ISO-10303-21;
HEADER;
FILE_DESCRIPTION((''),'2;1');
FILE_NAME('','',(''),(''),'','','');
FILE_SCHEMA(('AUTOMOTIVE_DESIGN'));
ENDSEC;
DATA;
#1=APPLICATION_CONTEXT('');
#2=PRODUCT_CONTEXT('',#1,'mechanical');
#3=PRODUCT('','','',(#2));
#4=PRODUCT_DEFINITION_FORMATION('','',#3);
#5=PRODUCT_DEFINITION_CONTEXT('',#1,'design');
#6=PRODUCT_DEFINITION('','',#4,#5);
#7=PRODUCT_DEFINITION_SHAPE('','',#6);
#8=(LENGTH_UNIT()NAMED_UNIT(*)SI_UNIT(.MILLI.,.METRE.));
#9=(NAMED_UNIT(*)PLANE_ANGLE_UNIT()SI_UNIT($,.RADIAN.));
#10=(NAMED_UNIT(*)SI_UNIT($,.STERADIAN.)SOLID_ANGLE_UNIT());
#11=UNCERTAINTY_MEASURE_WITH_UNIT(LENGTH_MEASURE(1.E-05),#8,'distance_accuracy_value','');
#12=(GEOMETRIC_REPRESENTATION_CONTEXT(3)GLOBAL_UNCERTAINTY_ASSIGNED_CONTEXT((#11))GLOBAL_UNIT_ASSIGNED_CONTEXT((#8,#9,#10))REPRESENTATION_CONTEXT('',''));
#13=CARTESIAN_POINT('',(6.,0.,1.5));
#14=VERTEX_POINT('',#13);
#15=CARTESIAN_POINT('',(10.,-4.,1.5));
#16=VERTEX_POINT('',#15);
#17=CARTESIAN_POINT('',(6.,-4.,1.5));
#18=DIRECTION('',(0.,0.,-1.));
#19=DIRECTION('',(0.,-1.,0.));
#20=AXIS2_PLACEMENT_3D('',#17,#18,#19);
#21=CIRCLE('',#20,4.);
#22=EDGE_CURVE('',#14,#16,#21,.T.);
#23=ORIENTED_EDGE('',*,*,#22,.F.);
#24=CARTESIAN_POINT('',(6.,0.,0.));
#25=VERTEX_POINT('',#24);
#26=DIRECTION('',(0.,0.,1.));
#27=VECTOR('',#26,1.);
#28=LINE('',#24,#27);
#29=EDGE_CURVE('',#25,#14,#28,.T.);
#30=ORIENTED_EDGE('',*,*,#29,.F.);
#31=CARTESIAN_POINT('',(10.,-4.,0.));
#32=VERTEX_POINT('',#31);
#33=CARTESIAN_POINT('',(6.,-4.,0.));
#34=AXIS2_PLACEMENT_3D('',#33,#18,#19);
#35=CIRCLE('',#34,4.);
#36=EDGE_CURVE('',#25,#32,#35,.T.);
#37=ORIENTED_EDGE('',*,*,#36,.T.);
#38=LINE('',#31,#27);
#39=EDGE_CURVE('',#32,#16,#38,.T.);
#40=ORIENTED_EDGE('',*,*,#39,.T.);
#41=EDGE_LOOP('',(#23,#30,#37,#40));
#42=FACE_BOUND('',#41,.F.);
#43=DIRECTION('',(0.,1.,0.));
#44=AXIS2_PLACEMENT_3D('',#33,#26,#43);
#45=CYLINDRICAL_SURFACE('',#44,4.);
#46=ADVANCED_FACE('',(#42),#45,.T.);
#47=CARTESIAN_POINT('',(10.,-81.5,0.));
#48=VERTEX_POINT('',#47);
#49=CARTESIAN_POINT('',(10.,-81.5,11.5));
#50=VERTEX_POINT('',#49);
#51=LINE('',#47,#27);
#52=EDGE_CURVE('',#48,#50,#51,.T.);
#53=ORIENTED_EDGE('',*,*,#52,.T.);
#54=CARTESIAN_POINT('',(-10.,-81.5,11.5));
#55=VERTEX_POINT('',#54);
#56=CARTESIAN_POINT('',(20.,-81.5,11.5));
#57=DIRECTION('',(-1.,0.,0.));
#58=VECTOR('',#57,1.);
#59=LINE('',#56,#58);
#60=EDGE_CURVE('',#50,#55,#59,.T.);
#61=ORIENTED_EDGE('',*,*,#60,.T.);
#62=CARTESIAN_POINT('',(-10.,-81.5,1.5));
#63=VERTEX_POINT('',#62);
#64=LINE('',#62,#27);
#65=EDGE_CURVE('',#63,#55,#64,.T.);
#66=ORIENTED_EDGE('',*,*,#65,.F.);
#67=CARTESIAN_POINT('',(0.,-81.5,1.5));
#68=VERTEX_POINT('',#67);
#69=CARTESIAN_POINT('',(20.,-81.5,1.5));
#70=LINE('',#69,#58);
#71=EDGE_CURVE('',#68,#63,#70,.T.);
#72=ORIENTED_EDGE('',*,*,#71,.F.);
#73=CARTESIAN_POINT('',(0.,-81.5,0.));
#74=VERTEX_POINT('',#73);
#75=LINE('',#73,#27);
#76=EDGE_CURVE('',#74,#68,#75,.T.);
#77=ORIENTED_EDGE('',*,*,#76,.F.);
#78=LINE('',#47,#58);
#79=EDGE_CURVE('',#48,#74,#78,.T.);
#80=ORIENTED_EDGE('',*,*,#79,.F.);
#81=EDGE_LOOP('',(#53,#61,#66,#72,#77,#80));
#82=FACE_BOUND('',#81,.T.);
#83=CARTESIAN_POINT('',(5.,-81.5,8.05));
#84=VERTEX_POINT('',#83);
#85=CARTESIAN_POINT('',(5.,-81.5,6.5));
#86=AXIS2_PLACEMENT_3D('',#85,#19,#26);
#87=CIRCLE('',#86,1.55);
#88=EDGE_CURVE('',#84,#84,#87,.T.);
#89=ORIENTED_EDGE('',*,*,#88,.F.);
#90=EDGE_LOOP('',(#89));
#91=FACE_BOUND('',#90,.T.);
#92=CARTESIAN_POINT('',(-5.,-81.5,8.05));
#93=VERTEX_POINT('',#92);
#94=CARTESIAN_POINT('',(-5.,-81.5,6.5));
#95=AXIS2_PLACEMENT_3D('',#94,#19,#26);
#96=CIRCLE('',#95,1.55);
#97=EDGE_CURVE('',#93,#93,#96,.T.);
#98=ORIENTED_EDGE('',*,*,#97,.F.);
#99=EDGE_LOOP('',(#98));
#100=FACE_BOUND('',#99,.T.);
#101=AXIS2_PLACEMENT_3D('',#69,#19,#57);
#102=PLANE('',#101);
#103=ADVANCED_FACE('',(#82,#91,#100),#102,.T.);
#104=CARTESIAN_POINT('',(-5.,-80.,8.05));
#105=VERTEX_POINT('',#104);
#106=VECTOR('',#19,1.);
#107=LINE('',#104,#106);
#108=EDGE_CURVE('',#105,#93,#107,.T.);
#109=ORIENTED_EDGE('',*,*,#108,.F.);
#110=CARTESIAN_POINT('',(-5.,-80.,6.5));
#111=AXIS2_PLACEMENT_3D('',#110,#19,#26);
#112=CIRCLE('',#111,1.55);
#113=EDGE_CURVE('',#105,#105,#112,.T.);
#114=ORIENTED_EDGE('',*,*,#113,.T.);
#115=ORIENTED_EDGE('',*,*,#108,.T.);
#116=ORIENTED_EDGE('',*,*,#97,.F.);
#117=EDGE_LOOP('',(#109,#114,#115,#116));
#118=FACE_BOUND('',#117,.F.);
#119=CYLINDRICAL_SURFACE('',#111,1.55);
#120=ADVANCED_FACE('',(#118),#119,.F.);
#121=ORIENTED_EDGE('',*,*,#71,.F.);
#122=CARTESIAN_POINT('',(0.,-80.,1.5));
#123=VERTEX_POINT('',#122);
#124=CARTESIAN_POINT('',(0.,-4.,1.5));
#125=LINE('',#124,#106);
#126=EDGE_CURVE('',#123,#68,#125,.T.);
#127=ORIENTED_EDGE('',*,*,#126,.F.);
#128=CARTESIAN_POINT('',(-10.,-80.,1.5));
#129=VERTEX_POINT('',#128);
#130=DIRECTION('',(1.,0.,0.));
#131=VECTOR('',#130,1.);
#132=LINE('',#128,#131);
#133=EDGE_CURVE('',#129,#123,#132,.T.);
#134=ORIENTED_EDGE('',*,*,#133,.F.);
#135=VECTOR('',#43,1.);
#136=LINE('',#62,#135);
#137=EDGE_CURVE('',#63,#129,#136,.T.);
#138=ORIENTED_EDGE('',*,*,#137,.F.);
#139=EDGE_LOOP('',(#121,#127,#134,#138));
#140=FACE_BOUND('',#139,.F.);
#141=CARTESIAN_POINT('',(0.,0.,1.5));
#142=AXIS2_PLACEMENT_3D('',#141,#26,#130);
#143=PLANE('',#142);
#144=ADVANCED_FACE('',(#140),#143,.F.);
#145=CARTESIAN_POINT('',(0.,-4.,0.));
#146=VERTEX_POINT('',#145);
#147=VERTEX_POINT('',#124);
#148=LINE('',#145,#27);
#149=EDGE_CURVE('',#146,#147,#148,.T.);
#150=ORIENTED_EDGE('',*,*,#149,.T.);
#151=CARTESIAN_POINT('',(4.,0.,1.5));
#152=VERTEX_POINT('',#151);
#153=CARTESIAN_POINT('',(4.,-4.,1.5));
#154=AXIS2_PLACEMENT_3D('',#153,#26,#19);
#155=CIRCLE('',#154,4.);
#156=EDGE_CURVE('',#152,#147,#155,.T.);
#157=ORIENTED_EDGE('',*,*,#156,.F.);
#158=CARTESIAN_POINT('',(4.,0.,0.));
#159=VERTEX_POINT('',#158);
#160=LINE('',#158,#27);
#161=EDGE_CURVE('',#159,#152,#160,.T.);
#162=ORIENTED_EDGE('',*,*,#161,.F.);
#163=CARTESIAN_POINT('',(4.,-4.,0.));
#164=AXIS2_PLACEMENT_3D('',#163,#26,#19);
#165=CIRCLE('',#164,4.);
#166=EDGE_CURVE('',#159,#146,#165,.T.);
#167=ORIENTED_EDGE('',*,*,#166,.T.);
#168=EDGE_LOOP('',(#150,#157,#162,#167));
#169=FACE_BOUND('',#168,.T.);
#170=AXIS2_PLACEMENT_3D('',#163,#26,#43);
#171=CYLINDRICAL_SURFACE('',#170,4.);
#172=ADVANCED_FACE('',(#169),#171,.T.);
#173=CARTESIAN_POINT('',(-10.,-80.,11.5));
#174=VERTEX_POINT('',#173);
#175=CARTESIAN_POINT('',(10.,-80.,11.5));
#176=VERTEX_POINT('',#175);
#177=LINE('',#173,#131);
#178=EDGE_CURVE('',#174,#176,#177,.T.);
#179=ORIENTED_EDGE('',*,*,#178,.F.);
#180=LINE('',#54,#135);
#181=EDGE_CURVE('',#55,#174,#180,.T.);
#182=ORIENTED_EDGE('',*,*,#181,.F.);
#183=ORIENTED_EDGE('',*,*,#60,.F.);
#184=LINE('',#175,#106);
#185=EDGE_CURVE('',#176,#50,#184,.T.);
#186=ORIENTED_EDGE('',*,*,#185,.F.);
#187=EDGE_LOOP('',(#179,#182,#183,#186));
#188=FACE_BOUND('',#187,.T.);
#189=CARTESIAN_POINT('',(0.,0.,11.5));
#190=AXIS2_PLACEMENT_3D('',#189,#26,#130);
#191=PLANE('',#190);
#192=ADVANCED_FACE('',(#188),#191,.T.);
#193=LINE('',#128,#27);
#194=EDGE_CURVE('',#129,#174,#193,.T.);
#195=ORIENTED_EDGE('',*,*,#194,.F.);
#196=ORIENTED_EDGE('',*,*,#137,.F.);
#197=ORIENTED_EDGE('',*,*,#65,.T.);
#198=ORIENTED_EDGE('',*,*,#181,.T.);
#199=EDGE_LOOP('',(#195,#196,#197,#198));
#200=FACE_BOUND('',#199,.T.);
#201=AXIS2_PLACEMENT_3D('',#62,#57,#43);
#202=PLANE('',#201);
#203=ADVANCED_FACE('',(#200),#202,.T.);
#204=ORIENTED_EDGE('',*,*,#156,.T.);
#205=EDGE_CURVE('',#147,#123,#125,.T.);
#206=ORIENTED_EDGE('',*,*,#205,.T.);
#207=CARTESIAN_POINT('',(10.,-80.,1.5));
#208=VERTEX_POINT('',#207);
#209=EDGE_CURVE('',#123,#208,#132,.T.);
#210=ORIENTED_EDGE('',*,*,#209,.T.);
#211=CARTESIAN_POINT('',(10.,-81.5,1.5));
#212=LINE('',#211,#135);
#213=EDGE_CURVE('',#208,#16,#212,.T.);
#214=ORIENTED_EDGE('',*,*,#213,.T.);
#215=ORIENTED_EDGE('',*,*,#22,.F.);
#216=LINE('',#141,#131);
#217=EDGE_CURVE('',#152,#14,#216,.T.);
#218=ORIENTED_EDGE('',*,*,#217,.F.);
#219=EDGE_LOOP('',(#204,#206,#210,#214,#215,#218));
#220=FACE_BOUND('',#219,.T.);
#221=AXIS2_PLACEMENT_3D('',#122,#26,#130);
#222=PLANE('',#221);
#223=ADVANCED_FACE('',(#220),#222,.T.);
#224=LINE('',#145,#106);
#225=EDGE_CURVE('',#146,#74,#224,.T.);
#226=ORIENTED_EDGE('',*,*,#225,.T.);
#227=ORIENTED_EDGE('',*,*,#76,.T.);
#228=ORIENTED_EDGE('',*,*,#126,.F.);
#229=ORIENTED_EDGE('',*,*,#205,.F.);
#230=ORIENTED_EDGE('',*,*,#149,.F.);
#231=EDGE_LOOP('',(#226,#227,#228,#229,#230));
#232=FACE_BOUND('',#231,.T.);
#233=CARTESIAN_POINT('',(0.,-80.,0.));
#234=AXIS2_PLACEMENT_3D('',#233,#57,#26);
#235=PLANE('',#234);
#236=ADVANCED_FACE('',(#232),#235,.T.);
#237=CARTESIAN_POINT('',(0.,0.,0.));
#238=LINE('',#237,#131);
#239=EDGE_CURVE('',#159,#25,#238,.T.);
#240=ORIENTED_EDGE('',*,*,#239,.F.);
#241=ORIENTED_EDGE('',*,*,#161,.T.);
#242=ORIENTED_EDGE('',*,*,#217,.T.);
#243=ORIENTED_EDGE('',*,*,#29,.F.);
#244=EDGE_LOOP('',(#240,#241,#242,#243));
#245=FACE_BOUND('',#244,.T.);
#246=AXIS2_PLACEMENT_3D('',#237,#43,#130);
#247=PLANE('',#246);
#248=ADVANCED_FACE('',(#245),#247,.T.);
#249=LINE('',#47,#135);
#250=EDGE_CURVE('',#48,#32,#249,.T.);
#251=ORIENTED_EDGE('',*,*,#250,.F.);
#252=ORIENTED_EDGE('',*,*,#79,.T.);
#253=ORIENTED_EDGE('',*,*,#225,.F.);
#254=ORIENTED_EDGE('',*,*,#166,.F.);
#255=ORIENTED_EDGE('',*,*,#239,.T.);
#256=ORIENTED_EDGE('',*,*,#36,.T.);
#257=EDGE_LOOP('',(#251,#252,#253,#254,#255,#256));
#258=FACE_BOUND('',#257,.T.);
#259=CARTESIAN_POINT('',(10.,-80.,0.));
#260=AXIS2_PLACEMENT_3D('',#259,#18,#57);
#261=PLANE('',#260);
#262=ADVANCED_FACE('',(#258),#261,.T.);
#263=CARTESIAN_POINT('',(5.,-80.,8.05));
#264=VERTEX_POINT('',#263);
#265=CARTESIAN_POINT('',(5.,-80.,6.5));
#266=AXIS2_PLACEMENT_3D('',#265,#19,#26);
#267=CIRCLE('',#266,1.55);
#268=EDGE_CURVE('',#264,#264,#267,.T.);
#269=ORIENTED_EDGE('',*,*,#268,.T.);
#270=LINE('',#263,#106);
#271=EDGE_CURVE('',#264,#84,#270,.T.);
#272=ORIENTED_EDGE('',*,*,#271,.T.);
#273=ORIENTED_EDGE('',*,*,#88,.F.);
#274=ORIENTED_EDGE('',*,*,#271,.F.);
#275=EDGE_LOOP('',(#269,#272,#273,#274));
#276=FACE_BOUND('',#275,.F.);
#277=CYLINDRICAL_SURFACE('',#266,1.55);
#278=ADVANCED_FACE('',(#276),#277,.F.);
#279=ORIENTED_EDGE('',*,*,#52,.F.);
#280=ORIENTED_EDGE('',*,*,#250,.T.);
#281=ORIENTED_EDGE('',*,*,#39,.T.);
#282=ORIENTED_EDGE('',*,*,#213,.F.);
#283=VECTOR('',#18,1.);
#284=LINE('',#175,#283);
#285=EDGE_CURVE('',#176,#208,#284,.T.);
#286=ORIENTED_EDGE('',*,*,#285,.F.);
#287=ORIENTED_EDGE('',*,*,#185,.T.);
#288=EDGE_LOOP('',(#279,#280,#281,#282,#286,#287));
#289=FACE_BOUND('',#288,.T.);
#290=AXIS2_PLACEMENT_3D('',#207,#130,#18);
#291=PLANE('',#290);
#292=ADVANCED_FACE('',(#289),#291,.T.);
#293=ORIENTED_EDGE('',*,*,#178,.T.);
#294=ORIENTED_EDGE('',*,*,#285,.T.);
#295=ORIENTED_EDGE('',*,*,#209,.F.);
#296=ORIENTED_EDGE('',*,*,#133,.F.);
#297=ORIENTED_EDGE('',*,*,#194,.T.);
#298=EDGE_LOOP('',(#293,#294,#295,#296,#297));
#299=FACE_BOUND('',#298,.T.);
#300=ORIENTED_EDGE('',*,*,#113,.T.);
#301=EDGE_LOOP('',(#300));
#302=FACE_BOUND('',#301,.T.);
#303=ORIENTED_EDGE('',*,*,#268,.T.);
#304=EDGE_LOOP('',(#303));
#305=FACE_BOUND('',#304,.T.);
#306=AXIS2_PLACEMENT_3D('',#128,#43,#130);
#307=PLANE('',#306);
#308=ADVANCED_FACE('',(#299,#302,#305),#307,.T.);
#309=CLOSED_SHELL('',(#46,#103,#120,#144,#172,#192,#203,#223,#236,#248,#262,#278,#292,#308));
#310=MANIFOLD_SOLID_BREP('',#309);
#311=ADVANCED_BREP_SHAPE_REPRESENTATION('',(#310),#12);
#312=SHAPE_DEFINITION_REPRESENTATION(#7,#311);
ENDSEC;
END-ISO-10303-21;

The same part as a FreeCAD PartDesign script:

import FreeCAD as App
import Part
import Sketcher
from FreeCAD import Vector


def edges_at(feature, points):
    """Names of the edges that pass closest to the given points."""
    edges = feature.Shape.Edges
    near = lambda p: min(range(len(edges)), key=lambda i: edges[i].distToShape(Part.Vertex(*p))[0])
    return sorted({f"Edge{near(p) + 1}" for p in points})


def add_polygon(sketch, points):
    """Adds a closed chain of lines whose ends are joined by coincident constraints."""
    first, n = sketch.GeometryCount, len(points)
    for a, b in zip(points, points[1:] + points[:1]):
        sketch.addGeometry(Part.LineSegment(App.Vector(*a, 0), App.Vector(*b, 0)), False)
    for i in range(n):
        sketch.addConstraint(Sketcher.Constraint("Coincident", first + i, 2, first + (i + 1) % n, 1))

doc = App.newDocument("Part")
body = doc.addObject("PartDesign::Body", "Body")

# Sketch on XY plane
sketch1 = body.newObject("Sketcher::SketchObject", "Sketch")
sketch1.AttachmentSupport = (doc.getObject("XY_Plane"), [""])
sketch1.MapMode = "FlatFace"
add_polygon(sketch1, [(10, 0), (0, 0), (0, -80), (10, -80)])  # lines 0-3
sketch1.addConstraint([
    Sketcher.Constraint("Horizontal", 0),
    Sketcher.Constraint("Vertical", 1),
    Sketcher.Constraint("Horizontal", 2),
    Sketcher.Constraint("Vertical", 3),
    Sketcher.Constraint("Coincident", 0, 2, -1, 1),
    Sketcher.Constraint("DistanceX", 0, 2, 0, 1, 10.0),
    Sketcher.Constraint("DistanceY", 1, 2, 1, 1, 80.0),
])
pad1 = body.newObject("PartDesign::Pad", "Pad")
pad1.Profile = sketch1
pad1.Length = 1.5
doc.recompute()

fillet = body.newObject("PartDesign::Fillet", "Fillet")
fillet.Base = (pad1, edges_at(pad1, [(10, 0, 0.75), (0, 0, 0.75)]))
fillet.Radius = 4

# Sketch on XZ plane
sketch2 = body.newObject("Sketcher::SketchObject", "Sketch001")
sketch2.AttachmentSupport = (doc.getObject("XZ_Plane"), [""])
sketch2.MapMode = "FlatFace"
sketch2.AttachmentOffset = App.Placement(Vector(0, 0, 80), App.Rotation())
add_polygon(sketch2, [(10, 1.5), (0, 1.5), (0, 0), (10, 0)])  # lines 0-3
sketch2.addConstraint([
    Sketcher.Constraint("Horizontal", 0),
    Sketcher.Constraint("Vertical", 1),
    Sketcher.Constraint("Horizontal", 2),
    Sketcher.Constraint("Vertical", 3),
    Sketcher.Constraint("Coincident", 1, 2, -1, 1),
    Sketcher.Constraint("DistanceX", 0, 2, 0, 1, 10.0),
    Sketcher.Constraint("DistanceY", 1, 2, 1, 1, 1.5),
])
pad2 = body.newObject("PartDesign::Pad", "Pad001")
pad2.Profile = sketch2
pad2.Length = 1.5

# Sketch on XY plane
sketch3 = body.newObject("Sketcher::SketchObject", "Sketch002")
sketch3.AttachmentSupport = (doc.getObject("XY_Plane"), [""])
sketch3.MapMode = "FlatFace"
sketch3.AttachmentOffset = App.Placement(Vector(0, 0, 1.5), App.Rotation())
add_polygon(sketch3, [(-10, -81.5), (20, -81.5), (20, -80), (-10, -80)])  # lines 0-3
sketch3.addConstraint([
    Sketcher.Constraint("Horizontal", 0),
    Sketcher.Constraint("Vertical", 1),
    Sketcher.Constraint("Horizontal", 2),
    Sketcher.Constraint("Vertical", 3),
    Sketcher.Constraint("DistanceX", 0, 1, 0, 2, 30.0),
    Sketcher.Constraint("DistanceY", 1, 1, 1, 2, 1.5),
    Sketcher.Constraint("DistanceX", -1, 1, 0, 2, 20.0),
    Sketcher.Constraint("DistanceY", 1, 2, -1, 1, 80.0),
])
pad3 = body.newObject("PartDesign::Pad", "Pad002")
pad3.Profile = sketch3
pad3.Length = 10

# Sketch on XZ plane
sketch4 = body.newObject("Sketcher::SketchObject", "Sketch003")
sketch4.AttachmentSupport = (doc.getObject("XZ_Plane"), [""])
sketch4.MapMode = "FlatFace"
sketch4.AttachmentOffset = App.Placement(Vector(0, 0, 80), App.Rotation())
add_polygon(sketch4, [(10, 12), (20, 12), (20, 2), (10, 2)])  # lines 0-3
sketch4.addConstraint([
    Sketcher.Constraint("Horizontal", 0),
    Sketcher.Constraint("Vertical", 1),
    Sketcher.Constraint("Horizontal", 2),
    Sketcher.Constraint("Vertical", 3),
    Sketcher.Constraint("Equal", 2, 1),
    Sketcher.Constraint("DistanceX", 0, 1, 0, 2, 10.0),
    Sketcher.Constraint("DistanceX", -1, 1, 2, 2, 10.0),
    Sketcher.Constraint("DistanceY", -1, 1, 0, 2, 11.5),
])
pocket1 = body.newObject("PartDesign::Pocket", "Pocket")
pocket1.Profile = sketch4
pocket1.Length = 10
pocket1.Reversed = True

# Sketch on XZ plane
sketch5 = body.newObject("Sketcher::SketchObject", "Sketch004")
sketch5.AttachmentSupport = (doc.getObject("XZ_Plane"), [""])
sketch5.MapMode = "FlatFace"
sketch5.AttachmentOffset = App.Placement(Vector(0, 0, 80), App.Rotation())
sketch5.addGeometry([
    Part.Circle(Vector(5, 6.5, 0), Vector(0, 0, 1), 1.6),
    Part.Circle(Vector(-5, 6.5, 0), Vector(0, 0, 1), 1.6),
], False)
sketch5.addConstraint([
    Sketcher.Constraint("Equal", 0, 1),
    Sketcher.Constraint("Symmetric", 0, 3, 1, 3, -2),
    Sketcher.Constraint("Diameter", 0, 3.1),
    Sketcher.Constraint("DistanceX", -1, 1, 0, 3, 5.0),
    Sketcher.Constraint("DistanceY", -1, 1, 0, 3, 6.5),
])
doc.recompute()
hole = body.newObject("PartDesign::Hole", "Hole")
hole.Profile = sketch5
hole.ThreadType = "None"
hole.Diameter = 3.1
hole.DepthType = "Dimension"
hole.Depth = 8
hole.DrillPoint = "Angled"
hole.DrillPointAngle = 118
hole.Reversed = True

doc.recompute()
